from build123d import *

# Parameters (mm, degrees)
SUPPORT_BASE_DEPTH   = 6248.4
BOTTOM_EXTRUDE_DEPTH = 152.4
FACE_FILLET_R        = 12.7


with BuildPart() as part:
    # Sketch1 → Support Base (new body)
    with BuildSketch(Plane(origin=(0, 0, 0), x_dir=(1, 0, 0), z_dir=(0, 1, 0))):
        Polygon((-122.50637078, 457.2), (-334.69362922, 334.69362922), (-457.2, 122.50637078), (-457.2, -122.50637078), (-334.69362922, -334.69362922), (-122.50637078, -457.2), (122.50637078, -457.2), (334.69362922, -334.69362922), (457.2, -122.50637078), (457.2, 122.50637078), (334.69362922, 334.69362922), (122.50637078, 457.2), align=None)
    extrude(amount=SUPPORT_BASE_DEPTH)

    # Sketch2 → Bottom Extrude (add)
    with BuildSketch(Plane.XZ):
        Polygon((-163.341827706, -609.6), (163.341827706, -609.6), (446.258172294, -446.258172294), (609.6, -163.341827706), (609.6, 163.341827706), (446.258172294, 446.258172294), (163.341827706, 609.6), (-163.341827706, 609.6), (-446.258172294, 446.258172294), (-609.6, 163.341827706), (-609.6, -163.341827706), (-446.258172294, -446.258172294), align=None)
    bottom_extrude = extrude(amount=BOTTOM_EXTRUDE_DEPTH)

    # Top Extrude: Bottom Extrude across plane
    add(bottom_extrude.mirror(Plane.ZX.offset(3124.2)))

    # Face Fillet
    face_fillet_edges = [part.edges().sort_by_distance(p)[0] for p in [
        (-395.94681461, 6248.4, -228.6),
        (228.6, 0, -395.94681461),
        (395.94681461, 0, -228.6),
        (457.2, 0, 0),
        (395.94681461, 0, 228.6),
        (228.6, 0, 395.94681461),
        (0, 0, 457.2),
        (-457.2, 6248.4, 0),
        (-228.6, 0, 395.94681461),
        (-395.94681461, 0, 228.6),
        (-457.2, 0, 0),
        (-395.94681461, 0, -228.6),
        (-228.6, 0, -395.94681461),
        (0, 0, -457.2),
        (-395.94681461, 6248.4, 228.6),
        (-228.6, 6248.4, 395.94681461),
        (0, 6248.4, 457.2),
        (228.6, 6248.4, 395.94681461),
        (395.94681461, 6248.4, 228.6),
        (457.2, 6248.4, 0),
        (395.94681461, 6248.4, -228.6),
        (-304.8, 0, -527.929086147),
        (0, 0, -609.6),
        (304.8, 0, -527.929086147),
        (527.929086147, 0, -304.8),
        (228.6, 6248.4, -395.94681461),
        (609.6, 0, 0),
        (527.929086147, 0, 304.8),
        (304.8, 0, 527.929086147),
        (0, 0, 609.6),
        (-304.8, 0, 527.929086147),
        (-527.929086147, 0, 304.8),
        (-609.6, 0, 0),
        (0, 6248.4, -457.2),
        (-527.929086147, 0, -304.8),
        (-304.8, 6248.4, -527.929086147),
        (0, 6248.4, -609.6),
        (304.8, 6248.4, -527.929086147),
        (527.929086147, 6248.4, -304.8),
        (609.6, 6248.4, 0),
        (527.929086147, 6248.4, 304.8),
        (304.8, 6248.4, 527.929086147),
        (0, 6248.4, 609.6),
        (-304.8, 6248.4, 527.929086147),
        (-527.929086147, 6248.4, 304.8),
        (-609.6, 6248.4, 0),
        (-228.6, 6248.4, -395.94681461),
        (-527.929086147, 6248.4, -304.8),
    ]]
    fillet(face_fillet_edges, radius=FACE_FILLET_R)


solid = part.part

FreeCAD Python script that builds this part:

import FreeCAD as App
import Part
import Sketcher
from FreeCAD import Vector
Q = App.Units.Quantity


def edges_at(feature, points):
    """Names of the edges that pass closest to the given points."""
    edges = feature.Shape.Edges
    near = lambda p: min(range(len(edges)), key=lambda i: edges[i].distToShape(Part.Vertex(*p))[0])
    return sorted({f"Edge{near(p) + 1}" for p in points})


def add_polygon(sketch, points):
    """Adds a closed chain of lines whose ends are joined by coincident constraints."""
    first, n = sketch.GeometryCount, len(points)
    for a, b in zip(points, points[1:] + points[:1]):
        sketch.addGeometry(Part.LineSegment(App.Vector(*a, 0), App.Vector(*b, 0)), False)
    for i in range(n):
        sketch.addConstraint(Sketcher.Constraint("Coincident", first + i, 2, first + (i + 1) % n, 1))

doc = App.newDocument("Part")
params = doc.addObject("Spreadsheet::Sheet", "Params")
for row, (alias, value) in enumerate([
    ("pad1_length", "246 in"),
    ("pad2_length", "6 in"),
    ("fillet_radius", "0.5 in"),
], start=1):
    params.set(f"A{row}", alias)
    params.set(f"B{row}", "=" + value)
    params.setAlias(f"B{row}", alias)

body = doc.addObject("PartDesign::Body", "Body")

# Sketch on XZ plane
sketch1 = body.newObject("Sketcher::SketchObject", "Sketch")
sketch1.AttachmentSupport = (doc.getObject("XZ_Plane"), [""])
sketch1.MapMode = "FlatFace"
add_polygon(sketch1, [(-122.506371, -457.2), (-334.693629, -334.693629), (-457.2, -122.506371), (-457.2, 122.506371), (-334.693629, 334.693629), (-122.506371, 457.2), (122.506371, 457.2), (334.693629, 334.693629), (457.2, 122.506371), (457.2, -122.506371), (334.693629, -334.693629), (122.506371, -457.2)])  # lines 0-11
sketch1.addConstraint([
    Sketcher.Constraint("Vertical", 2),
    Sketcher.Constraint("Horizontal", 5),
    Sketcher.Constraint("Vertical", 8),
    Sketcher.Constraint("Horizontal", 11),
    Sketcher.Constraint("Symmetric", 0, 2, 6, 2, -1, 1),
    Sketcher.Constraint("Symmetric", 1, 2, 7, 2, -1, 1),
    Sketcher.Constraint("Symmetric", 3, 2, 9, 2, -1, 1),
    Sketcher.Constraint("Symmetric", 4, 2, 10, 2, -1, 1),
    Sketcher.Constraint("Symmetric", 3, 2, 6, 2, -2),
    Sketcher.Constraint("Perpendicular", 0, 3),
    Sketcher.Constraint("Perpendicular", 1, 4),
    Sketcher.Constraint("Perpendicular", 3, 6),
    Sketcher.Constraint("Perpendicular", 6, 9),
    Sketcher.Constraint("Horizontal", 2, 2, 7, 2),
    Sketcher.Constraint("Equal", 11, 2),
    Sketcher.Constraint("Equal", 0, 1),
    Sketcher.Constraint("DistanceX", 1, 2, -1, 1, Q("18 in")),
    Sketcher.Constraint("Angle", 0, Q("150 deg")),
    Sketcher.Constraint("DistanceY", 0, 2, 2, 2, Q("18 in")),
])
pad1 = body.newObject("PartDesign::Pad", "Pad")
pad1.Profile = sketch1
pad1.setExpression("Length", "Params.pad1_length")
pad1.Reversed = True

# Sketch on XZ plane
sketch2 = body.newObject("Sketcher::SketchObject", "Sketch001")
sketch2.AttachmentSupport = (doc.getObject("XZ_Plane"), [""])
sketch2.MapMode = "FlatFace"
add_polygon(sketch2, [(-163.341828, -609.6), (163.341828, -609.6), (446.258172, -446.258172), (609.6, -163.341828), (609.6, 163.341828), (446.258172, 446.258172), (163.341828, 609.6), (-163.341828, 609.6), (-446.258172, 446.258172), (-609.6, 163.341828), (-609.6, -163.341828), (-446.258172, -446.258172)])  # lines 0-11
sketch2.addConstraint([
    Sketcher.Constraint("Horizontal", 0),
    Sketcher.Constraint("Vertical", 3),
    Sketcher.Constraint("Horizontal", 6),
    Sketcher.Constraint("Vertical", 9),
    Sketcher.Constraint("Symmetric", 0, 2, 6, 2, -1, 1),
    Sketcher.Constraint("Symmetric", 1, 2, 7, 2, -1, 1),
    Sketcher.Constraint("Symmetric", 2, 2, 8, 2, -1, 1),
    Sketcher.Constraint("Symmetric", 4, 2, 10, 2, -1, 1),
    Sketcher.Constraint("Symmetric", 4, 2, 7, 2, -2),
    Sketcher.Constraint("Perpendicular", 1, 4),
    Sketcher.Constraint("Perpendicular", 2, 5),
    Sketcher.Constraint("Perpendicular", 7, 10),
    Sketcher.Constraint("Perpendicular", 8, 11),
    Sketcher.Constraint("Horizontal", 3, 2, 8, 2),
    Sketcher.Constraint("Equal", 6, 3),
    Sketcher.Constraint("Equal", 1, 2),
    Sketcher.Constraint("DistanceY", 0, 2, -1, 1, Q("24 in")),
    Sketcher.Constraint("Angle", 1, Q("30 deg")),
    Sketcher.Constraint("DistanceY", 1, 2, 3, 2, Q("24 in")),
])
pad2 = body.newObject("PartDesign::Pad", "Pad001")
pad2.Profile = sketch2
pad2.setExpression("Length", "Params.pad2_length")
doc.recompute()

datumplane = body.newObject("PartDesign::Plane", "DatumPlane")
datumplane.AttachmentSupport = (doc.getObject("XZ_Plane"), [""])
datumplane.MapMode = "FlatFace"
datumplane.AttachmentOffset = App.Placement(Vector(0, 0, -123 * 25.4), App.Rotation())
mirrored = body.newObject("PartDesign::Mirrored", "Mirrored")
mirrored.Originals = [pad2]
mirrored.MirrorPlane = (datumplane, [""])
body.Tip = mirrored
doc.recompute()

fillet = body.newObject("PartDesign::Fillet", "Fillet")
fillet.Base = (mirrored, edges_at(mirrored, [
    (-395.947, 6248.4, -228.6),
    (228.6, 0, -395.947),
    (395.947, 0, -228.6),
    (457.2, 0, 0),
    (395.947, 0, 228.6),
    (228.6, 0, 395.947),
    (0, 0, 457.2),
    (-457.2, 6248.4, 0),
    (-228.6, 0, 395.947),
    (-395.947, 0, 228.6),
    (-457.2, 0, 0),
    (-395.947, 0, -228.6),
    (-228.6, 0, -395.947),
    (0, 0, -457.2),
    (-395.947, 6248.4, 228.6),
    (-228.6, 6248.4, 395.947),
    (0, 6248.4, 457.2),
    (228.6, 6248.4, 395.947),
    (395.947, 6248.4, 228.6),
    (457.2, 6248.4, 0),
    (395.947, 6248.4, -228.6),
    (-304.8, 0, -527.929),
    (0, 0, -609.6),
    (304.8, 0, -527.929),
    (527.929, 0, -304.8),
    (228.6, 6248.4, -395.947),
    (609.6, 0, 0),
    (527.929, 0, 304.8),
    (304.8, 0, 527.929),
    (0, 0, 609.6),
    (-304.8, 0, 527.929),
    (-527.929, 0, 304.8),
    (-609.6, 0, 0),
    (0, 6248.4, -457.2),
    (-527.929, 0, -304.8),
    (-304.8, 6248.4, -527.929),
    (0, 6248.4, -609.6),
    (304.8, 6248.4, -527.929),
    (527.929, 6248.4, -304.8),
    (609.6, 6248.4, 0),
    (527.929, 6248.4, 304.8),
    (304.8, 6248.4, 527.929),
    (0, 6248.4, 609.6),
    (-304.8, 6248.4, 527.929),
    (-527.929, 6248.4, 304.8),
    (-609.6, 6248.4, 0),
    (-228.6, 6248.4, -395.947),
    (-527.929, 6248.4, -304.8),
]))
fillet.setExpression("Radius", "Params.fillet_radius")

doc.recompute()
